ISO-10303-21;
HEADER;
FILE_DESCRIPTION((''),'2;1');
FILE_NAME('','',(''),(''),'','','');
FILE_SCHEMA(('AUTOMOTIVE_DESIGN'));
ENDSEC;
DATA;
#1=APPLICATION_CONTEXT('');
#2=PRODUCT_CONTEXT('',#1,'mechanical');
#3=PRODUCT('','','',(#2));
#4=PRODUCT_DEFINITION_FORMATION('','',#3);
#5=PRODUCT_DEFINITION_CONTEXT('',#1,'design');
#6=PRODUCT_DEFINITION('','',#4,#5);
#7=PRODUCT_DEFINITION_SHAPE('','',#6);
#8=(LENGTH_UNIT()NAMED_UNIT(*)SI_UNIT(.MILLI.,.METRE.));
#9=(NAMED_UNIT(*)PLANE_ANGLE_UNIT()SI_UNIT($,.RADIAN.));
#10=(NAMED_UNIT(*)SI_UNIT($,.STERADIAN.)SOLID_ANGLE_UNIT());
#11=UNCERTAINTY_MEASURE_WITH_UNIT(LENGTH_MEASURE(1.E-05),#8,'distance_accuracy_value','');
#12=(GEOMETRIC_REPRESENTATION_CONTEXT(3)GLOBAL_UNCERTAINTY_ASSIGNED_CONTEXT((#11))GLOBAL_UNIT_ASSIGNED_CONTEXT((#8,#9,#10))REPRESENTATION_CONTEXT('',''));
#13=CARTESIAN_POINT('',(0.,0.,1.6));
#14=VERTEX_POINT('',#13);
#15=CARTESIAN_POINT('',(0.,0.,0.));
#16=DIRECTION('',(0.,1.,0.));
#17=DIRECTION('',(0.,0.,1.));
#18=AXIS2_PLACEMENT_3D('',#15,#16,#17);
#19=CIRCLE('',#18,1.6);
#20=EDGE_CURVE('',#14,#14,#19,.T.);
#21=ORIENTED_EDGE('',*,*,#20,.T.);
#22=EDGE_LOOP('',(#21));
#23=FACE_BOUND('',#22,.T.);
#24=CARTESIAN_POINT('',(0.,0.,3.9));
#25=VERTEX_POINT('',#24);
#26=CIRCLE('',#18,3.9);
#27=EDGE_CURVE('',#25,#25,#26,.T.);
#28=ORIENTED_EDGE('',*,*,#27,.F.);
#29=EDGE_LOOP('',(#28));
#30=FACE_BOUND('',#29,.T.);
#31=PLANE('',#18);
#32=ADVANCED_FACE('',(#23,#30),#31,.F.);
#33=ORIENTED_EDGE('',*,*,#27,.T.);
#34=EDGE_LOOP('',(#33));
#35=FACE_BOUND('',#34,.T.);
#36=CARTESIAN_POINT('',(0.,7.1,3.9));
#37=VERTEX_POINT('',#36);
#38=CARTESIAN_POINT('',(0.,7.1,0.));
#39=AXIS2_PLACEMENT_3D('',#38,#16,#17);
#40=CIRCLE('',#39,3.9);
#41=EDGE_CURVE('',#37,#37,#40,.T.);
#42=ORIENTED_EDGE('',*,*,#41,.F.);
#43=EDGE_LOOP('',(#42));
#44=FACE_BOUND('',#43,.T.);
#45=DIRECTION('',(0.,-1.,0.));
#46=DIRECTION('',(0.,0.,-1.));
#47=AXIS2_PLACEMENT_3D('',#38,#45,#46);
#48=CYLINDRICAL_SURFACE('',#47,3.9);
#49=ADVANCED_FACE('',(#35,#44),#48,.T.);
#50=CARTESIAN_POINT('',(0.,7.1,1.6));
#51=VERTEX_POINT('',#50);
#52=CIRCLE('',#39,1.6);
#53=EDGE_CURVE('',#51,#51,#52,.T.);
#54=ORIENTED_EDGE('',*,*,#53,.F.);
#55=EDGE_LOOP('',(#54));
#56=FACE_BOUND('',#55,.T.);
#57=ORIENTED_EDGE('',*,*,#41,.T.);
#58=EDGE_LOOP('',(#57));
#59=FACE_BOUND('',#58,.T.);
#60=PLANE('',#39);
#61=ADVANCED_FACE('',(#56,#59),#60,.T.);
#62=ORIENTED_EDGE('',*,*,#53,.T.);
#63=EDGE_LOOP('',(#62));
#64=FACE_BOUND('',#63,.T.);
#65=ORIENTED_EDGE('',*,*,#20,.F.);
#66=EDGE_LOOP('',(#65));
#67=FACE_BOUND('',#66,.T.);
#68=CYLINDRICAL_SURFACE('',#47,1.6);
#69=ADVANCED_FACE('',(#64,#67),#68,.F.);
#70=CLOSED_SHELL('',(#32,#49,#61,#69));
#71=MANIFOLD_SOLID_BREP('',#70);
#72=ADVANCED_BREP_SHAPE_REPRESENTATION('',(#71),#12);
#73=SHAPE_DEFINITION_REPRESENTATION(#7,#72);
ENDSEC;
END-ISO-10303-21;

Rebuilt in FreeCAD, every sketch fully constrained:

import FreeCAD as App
import Part
import Sketcher

V = App.Vector
Q = App.Units.Quantity

doc = App.newDocument("Part")
body = doc.addObject("PartDesign::Body", "Body")

# Sketch on XZ plane
sketch1 = body.newObject("Sketcher::SketchObject", "Sketch")
sketch1.AttachmentSupport = (doc.getObject("XZ_Plane"), [""])
sketch1.MapMode = "FlatFace"
sketch1.addGeometry(Part.Circle(V(0, 0, 0), V(0, 0, 1), 3.9), False)
sketch1.addGeometry(Part.Circle(V(0, 0, 0), V(0, 0, 1), 1.6), False)
sketch1.addConstraint(Sketcher.Constraint("Coincident", 0, 3, -1, 1))
sketch1.addConstraint(Sketcher.Constraint("Coincident", 1, 3, -1, 1))
sketch1.addConstraint(Sketcher.Constraint("Diameter", 0, Q("7.8 mm")))
sketch1.addConstraint(Sketcher.Constraint("Diameter", 1, Q("3.2 mm")))
pad1 = body.newObject("PartDesign::Pad", "Pad")
pad1.Profile = sketch1
pad1.Length = 7.1
pad1.Reversed = True

doc.recompute()
